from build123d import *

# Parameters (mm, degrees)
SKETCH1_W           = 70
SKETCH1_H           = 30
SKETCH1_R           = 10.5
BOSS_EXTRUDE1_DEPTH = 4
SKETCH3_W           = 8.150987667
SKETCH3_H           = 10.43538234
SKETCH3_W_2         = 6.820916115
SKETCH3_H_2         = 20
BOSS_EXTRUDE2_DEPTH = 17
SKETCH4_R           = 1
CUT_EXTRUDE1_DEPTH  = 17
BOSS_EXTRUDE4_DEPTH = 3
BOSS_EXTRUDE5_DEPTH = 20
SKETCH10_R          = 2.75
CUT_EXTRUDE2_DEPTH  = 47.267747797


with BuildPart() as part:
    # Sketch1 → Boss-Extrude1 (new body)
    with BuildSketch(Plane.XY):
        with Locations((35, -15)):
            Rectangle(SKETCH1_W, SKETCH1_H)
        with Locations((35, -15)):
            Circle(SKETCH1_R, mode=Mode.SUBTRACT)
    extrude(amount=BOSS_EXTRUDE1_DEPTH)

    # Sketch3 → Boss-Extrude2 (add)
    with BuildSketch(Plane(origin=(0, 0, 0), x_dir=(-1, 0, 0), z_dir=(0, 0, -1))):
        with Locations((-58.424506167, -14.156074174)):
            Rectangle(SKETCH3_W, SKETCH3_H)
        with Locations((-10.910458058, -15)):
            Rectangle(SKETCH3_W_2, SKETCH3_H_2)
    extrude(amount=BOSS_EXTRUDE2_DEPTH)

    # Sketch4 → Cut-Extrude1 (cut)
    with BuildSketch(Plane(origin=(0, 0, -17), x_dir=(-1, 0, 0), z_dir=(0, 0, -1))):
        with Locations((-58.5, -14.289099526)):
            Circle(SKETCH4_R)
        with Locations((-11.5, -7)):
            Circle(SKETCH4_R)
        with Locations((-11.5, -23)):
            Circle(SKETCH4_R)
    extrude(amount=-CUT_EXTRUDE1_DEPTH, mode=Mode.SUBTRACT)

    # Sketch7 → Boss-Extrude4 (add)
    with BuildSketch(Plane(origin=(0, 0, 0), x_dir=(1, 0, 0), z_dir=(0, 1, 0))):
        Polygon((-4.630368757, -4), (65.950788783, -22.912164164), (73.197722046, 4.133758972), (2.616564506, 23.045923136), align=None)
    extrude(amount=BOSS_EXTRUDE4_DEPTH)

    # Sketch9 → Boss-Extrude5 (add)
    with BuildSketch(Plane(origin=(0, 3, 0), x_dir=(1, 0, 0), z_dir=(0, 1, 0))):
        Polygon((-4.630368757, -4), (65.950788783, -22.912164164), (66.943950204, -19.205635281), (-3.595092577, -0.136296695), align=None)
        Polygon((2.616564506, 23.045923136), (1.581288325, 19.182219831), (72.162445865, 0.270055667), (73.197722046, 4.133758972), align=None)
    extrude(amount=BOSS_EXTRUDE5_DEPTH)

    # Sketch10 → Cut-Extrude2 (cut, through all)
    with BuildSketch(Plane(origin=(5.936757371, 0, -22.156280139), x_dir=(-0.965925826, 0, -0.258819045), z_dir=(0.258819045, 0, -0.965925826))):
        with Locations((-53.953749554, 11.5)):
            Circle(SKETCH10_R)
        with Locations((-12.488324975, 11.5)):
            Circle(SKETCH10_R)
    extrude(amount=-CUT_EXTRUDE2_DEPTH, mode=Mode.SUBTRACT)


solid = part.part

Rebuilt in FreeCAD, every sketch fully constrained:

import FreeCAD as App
import Part
import Sketcher

V = App.Vector
Q = App.Units.Quantity


def add_polygon(sketch, points):
    """Adds a closed chain of lines whose ends are joined by coincident constraints."""
    first, n = sketch.GeometryCount, len(points)
    for a, b in zip(points, points[1:] + points[:1]):
        sketch.addGeometry(Part.LineSegment(App.Vector(*a, 0), App.Vector(*b, 0)), False)
    for i in range(n):
        sketch.addConstraint(Sketcher.Constraint("Coincident", first + i, 2, first + (i + 1) % n, 1))

doc = App.newDocument("Part")
body = doc.addObject("PartDesign::Body", "Body")

# Sketch on XY plane
sketch1 = body.newObject("Sketcher::SketchObject", "Sketch")
sketch1.AttachmentSupport = (doc.getObject("XY_Plane"), [""])
sketch1.MapMode = "FlatFace"
add_polygon(sketch1, [(0, 0), (0, -30), (70, -30), (70, 0)])  # lines 0-3
sketch1.addGeometry(Part.Circle(V(35, -15, 0), V(0, 0, 1), 10), False)  # 4
sketch1.addConstraint([
    Sketcher.Constraint("Vertical", 0),
    Sketcher.Constraint("Horizontal", 1),
    Sketcher.Constraint("Vertical", 2),
    Sketcher.Constraint("Horizontal", 3),
    Sketcher.Constraint("Coincident", 3, 2, -1, 1),
    Sketcher.Constraint("Diameter", 4, 21.0),
    Sketcher.Constraint("DistanceX", 1, 1, 1, 2, 70.0),
    Sketcher.Constraint("DistanceY", 0, 2, 0, 1, 30.0),
    Sketcher.Constraint("DistanceX", -1, 1, 4, 3, 35.0),
    Sketcher.Constraint("DistanceY", 4, 3, -1, 1, 15.0),
])
pad1 = body.newObject("PartDesign::Pad", "Pad")
pad1.Profile = sketch1
pad1.Length = 4

# Sketch on XY plane
sketch2 = body.newObject("Sketcher::SketchObject", "Sketch001")
sketch2.AttachmentSupport = (doc.getObject("XY_Plane"), [""])
sketch2.MapMode = "FlatFace"
add_polygon(sketch2, [(62, -9), (62, -19), (54, -19), (54, -9)])  # lines 0-3
add_polygon(sketch2, [(14, -5), (14, -25), (8, -25), (8, -5)])  # lines 4-7
sketch2.addConstraint([
    Sketcher.Constraint("Vertical", 0),
    Sketcher.Constraint("Horizontal", 1),
    Sketcher.Constraint("Vertical", 2),
    Sketcher.Constraint("Horizontal", 3),
    Sketcher.Constraint("Vertical", 4),
    Sketcher.Constraint("Horizontal", 5),
    Sketcher.Constraint("Vertical", 6),
    Sketcher.Constraint("Horizontal", 7),
    Sketcher.Constraint("DistanceY", 4, 2, 4, 1, 20.0),
    Sketcher.Constraint("DistanceY", 4, 2, -1, 1, 25.0),
    Sketcher.Constraint("DistanceX", 5, 2, 0, 2, 55.0),
    Sketcher.Constraint("DistanceX", -1, 1, 0, 2, 62.5),
    Sketcher.Constraint("DistanceX", 1, 2, 1, 1, 8.150988),
    Sketcher.Constraint("DistanceX", 5, 2, 5, 1, 6.820916),
    Sketcher.Constraint("DistanceY", 0, 2, 0, 1, 10.435382),
    Sketcher.Constraint("DistanceY", 0, 2, -1, 1, 19.373765),
])
pad2 = body.newObject("PartDesign::Pad", "Pad001")
pad2.Profile = sketch2
pad2.Length = 17
pad2.Reversed = True

# Sketch on XY plane
sketch3 = body.newObject("Sketcher::SketchObject", "Sketch002")
sketch3.AttachmentSupport = (doc.getObject("XY_Plane"), [""])
sketch3.MapMode = "FlatFace"
sketch3.AttachmentOffset = App.Placement(V(0, 0, -17), App.Rotation())
sketch3.addGeometry([
    Part.Circle(V(58.5, -14.3, 0), V(0, 0, 1), 1),
    Part.Circle(V(11.5, -7, 0), V(0, 0, 1), 1),
    Part.Circle(V(11.5, -23, 0), V(0, 0, 1), 1),
], False)
sketch3.addConstraint([
    Sketcher.Constraint("Equal", 0, 1),
    Sketcher.Constraint("Equal", 1, 2),
    Sketcher.Constraint("Vertical", 1, 3, 2, 3),
    Sketcher.Constraint("Diameter", 0, 2.0),
    Sketcher.Constraint("DistanceY", 1, 3, -1, 1, 7.0),
    Sketcher.Constraint("DistanceY", 2, 3, -1, 1, 23.0),
    Sketcher.Constraint("DistanceX", 1, 3, 0, 3, 47.0),
    Sketcher.Constraint("DistanceX", -1, 1, 0, 3, 58.5),
    Sketcher.Constraint("DistanceY", 0, 3, -1, 1, 14.2891),
])
pocket1 = body.newObject("PartDesign::Pocket", "Pocket")
pocket1.Profile = sketch3
pocket1.Length = 17
pocket1.Reversed = True

# Sketch on XZ plane
sketch4 = body.newObject("Sketcher::SketchObject", "Sketch003")
sketch4.AttachmentSupport = (doc.getObject("XZ_Plane"), [""])
sketch4.MapMode = "FlatFace"
add_polygon(sketch4, [(-5, 4), (66, 23), (73, -4), (3, -23)])  # lines 0-3
sketch4.addConstraint([
    Sketcher.Constraint("Perpendicular", 0, 1),
    Sketcher.Constraint("Perpendicular", 1, 2),
    Sketcher.Constraint("Perpendicular", 2, 3),
    Sketcher.Constraint("Angle", 0, Q("15 deg")),
    Sketcher.Constraint("Distance", 1, 28.0),
    Sketcher.Constraint("DistanceY", -1, 1, 3, 2, 4.0),
    Sketcher.Constraint("Distance", 0, 73.070991),
    Sketcher.Constraint("DistanceX", -1, 1, 0, 2, 65.950789),
])
pad3 = body.newObject("PartDesign::Pad", "Pad002")
pad3.Profile = sketch4
pad3.Length = 3
pad3.Reversed = True

# Sketch on XZ plane
sketch5 = body.newObject("Sketcher::SketchObject", "Sketch004")
sketch5.AttachmentSupport = (doc.getObject("XZ_Plane"), [""])
sketch5.MapMode = "FlatFace"
sketch5.AttachmentOffset = App.Placement(V(0, 0, -3), App.Rotation())
add_polygon(sketch5, [(-4.6, 4), (66, 22.9), (66.9, 19.2), (-3.6, 0.1)])  # lines 0-3
add_polygon(sketch5, [(2.6, -23), (1.6, -19.2), (72.2, -0.3), (73.2, -4.1)])  # lines 4-7
sketch5.addConstraint([
    Sketcher.Constraint("Perpendicular", 0, 1),
    Sketcher.Constraint("Parallel", 1, 3),
    Sketcher.Constraint("Parallel", 3, 4),
    Sketcher.Constraint("Perpendicular", 4, 5),
    Sketcher.Constraint("Perpendicular", 5, 6),
    Sketcher.Constraint("Perpendicular", 6, 7),
    Sketcher.Constraint("Equal", 3, 4),
    Sketcher.Constraint("Equal", 0, 5),
    Sketcher.Constraint("Angle", 0, Q("15 deg")),
    Sketcher.Constraint("Distance", 3, 4.0),
    Sketcher.Constraint("DistanceY", -1, 1, 3, 2, 4.0),
    Sketcher.Constraint("DistanceX", 4, 2, 0, 2, 64.3695),
    Sketcher.Constraint("Distance", 0, 73.070991),
    Sketcher.Constraint("Distance", 1, 3.837281),
    Sketcher.Constraint("DistanceX", -1, 1, 0, 2, 65.950789),
    Sketcher.Constraint("DistanceY", 4, 2, -1, 1, 19.18222),
])
pad4 = body.newObject("PartDesign::Pad", "Pad003")
pad4.Profile = sketch5
pad4.Length = 20
pad4.Reversed = True

# Sketch on an angled plane
sketch6 = body.newObject("Sketcher::SketchObject", "Sketch005")
sketch6.Placement = App.Placement(V(5.936757, 0, -22.15628), App.Rotation(V(-0.965925826, 0, -0.258819045), V(0, 0.999999999, 0), V(0.258819045, 0, -0.965925826), "ZXY"))
sketch6.addGeometry([
    Part.Circle(V(-54, 11.5, 0), V(0, 0, 1), 2.8),
    Part.Circle(V(-12.5, 11.5, 0), V(0, 0, 1), 2.8),
], False)
sketch6.addConstraint([
    Sketcher.Constraint("Equal", 0, 1),
    Sketcher.Constraint("Horizontal", 0, 3, 1, 3),
    Sketcher.Constraint("Diameter", 0, 5.5),
    Sketcher.Constraint("DistanceY", -1, 1, 0, 3, 11.5),
    Sketcher.Constraint("DistanceX", 0, 3, -1, 1, 53.95375),
    Sketcher.Constraint("DistanceX", 1, 3, -1, 1, 12.488325),
])
pocket2 = body.newObject("PartDesign::Pocket", "Pocket001")
pocket2.Profile = sketch6
pocket2.Type = "ThroughAll"

doc.recompute()
